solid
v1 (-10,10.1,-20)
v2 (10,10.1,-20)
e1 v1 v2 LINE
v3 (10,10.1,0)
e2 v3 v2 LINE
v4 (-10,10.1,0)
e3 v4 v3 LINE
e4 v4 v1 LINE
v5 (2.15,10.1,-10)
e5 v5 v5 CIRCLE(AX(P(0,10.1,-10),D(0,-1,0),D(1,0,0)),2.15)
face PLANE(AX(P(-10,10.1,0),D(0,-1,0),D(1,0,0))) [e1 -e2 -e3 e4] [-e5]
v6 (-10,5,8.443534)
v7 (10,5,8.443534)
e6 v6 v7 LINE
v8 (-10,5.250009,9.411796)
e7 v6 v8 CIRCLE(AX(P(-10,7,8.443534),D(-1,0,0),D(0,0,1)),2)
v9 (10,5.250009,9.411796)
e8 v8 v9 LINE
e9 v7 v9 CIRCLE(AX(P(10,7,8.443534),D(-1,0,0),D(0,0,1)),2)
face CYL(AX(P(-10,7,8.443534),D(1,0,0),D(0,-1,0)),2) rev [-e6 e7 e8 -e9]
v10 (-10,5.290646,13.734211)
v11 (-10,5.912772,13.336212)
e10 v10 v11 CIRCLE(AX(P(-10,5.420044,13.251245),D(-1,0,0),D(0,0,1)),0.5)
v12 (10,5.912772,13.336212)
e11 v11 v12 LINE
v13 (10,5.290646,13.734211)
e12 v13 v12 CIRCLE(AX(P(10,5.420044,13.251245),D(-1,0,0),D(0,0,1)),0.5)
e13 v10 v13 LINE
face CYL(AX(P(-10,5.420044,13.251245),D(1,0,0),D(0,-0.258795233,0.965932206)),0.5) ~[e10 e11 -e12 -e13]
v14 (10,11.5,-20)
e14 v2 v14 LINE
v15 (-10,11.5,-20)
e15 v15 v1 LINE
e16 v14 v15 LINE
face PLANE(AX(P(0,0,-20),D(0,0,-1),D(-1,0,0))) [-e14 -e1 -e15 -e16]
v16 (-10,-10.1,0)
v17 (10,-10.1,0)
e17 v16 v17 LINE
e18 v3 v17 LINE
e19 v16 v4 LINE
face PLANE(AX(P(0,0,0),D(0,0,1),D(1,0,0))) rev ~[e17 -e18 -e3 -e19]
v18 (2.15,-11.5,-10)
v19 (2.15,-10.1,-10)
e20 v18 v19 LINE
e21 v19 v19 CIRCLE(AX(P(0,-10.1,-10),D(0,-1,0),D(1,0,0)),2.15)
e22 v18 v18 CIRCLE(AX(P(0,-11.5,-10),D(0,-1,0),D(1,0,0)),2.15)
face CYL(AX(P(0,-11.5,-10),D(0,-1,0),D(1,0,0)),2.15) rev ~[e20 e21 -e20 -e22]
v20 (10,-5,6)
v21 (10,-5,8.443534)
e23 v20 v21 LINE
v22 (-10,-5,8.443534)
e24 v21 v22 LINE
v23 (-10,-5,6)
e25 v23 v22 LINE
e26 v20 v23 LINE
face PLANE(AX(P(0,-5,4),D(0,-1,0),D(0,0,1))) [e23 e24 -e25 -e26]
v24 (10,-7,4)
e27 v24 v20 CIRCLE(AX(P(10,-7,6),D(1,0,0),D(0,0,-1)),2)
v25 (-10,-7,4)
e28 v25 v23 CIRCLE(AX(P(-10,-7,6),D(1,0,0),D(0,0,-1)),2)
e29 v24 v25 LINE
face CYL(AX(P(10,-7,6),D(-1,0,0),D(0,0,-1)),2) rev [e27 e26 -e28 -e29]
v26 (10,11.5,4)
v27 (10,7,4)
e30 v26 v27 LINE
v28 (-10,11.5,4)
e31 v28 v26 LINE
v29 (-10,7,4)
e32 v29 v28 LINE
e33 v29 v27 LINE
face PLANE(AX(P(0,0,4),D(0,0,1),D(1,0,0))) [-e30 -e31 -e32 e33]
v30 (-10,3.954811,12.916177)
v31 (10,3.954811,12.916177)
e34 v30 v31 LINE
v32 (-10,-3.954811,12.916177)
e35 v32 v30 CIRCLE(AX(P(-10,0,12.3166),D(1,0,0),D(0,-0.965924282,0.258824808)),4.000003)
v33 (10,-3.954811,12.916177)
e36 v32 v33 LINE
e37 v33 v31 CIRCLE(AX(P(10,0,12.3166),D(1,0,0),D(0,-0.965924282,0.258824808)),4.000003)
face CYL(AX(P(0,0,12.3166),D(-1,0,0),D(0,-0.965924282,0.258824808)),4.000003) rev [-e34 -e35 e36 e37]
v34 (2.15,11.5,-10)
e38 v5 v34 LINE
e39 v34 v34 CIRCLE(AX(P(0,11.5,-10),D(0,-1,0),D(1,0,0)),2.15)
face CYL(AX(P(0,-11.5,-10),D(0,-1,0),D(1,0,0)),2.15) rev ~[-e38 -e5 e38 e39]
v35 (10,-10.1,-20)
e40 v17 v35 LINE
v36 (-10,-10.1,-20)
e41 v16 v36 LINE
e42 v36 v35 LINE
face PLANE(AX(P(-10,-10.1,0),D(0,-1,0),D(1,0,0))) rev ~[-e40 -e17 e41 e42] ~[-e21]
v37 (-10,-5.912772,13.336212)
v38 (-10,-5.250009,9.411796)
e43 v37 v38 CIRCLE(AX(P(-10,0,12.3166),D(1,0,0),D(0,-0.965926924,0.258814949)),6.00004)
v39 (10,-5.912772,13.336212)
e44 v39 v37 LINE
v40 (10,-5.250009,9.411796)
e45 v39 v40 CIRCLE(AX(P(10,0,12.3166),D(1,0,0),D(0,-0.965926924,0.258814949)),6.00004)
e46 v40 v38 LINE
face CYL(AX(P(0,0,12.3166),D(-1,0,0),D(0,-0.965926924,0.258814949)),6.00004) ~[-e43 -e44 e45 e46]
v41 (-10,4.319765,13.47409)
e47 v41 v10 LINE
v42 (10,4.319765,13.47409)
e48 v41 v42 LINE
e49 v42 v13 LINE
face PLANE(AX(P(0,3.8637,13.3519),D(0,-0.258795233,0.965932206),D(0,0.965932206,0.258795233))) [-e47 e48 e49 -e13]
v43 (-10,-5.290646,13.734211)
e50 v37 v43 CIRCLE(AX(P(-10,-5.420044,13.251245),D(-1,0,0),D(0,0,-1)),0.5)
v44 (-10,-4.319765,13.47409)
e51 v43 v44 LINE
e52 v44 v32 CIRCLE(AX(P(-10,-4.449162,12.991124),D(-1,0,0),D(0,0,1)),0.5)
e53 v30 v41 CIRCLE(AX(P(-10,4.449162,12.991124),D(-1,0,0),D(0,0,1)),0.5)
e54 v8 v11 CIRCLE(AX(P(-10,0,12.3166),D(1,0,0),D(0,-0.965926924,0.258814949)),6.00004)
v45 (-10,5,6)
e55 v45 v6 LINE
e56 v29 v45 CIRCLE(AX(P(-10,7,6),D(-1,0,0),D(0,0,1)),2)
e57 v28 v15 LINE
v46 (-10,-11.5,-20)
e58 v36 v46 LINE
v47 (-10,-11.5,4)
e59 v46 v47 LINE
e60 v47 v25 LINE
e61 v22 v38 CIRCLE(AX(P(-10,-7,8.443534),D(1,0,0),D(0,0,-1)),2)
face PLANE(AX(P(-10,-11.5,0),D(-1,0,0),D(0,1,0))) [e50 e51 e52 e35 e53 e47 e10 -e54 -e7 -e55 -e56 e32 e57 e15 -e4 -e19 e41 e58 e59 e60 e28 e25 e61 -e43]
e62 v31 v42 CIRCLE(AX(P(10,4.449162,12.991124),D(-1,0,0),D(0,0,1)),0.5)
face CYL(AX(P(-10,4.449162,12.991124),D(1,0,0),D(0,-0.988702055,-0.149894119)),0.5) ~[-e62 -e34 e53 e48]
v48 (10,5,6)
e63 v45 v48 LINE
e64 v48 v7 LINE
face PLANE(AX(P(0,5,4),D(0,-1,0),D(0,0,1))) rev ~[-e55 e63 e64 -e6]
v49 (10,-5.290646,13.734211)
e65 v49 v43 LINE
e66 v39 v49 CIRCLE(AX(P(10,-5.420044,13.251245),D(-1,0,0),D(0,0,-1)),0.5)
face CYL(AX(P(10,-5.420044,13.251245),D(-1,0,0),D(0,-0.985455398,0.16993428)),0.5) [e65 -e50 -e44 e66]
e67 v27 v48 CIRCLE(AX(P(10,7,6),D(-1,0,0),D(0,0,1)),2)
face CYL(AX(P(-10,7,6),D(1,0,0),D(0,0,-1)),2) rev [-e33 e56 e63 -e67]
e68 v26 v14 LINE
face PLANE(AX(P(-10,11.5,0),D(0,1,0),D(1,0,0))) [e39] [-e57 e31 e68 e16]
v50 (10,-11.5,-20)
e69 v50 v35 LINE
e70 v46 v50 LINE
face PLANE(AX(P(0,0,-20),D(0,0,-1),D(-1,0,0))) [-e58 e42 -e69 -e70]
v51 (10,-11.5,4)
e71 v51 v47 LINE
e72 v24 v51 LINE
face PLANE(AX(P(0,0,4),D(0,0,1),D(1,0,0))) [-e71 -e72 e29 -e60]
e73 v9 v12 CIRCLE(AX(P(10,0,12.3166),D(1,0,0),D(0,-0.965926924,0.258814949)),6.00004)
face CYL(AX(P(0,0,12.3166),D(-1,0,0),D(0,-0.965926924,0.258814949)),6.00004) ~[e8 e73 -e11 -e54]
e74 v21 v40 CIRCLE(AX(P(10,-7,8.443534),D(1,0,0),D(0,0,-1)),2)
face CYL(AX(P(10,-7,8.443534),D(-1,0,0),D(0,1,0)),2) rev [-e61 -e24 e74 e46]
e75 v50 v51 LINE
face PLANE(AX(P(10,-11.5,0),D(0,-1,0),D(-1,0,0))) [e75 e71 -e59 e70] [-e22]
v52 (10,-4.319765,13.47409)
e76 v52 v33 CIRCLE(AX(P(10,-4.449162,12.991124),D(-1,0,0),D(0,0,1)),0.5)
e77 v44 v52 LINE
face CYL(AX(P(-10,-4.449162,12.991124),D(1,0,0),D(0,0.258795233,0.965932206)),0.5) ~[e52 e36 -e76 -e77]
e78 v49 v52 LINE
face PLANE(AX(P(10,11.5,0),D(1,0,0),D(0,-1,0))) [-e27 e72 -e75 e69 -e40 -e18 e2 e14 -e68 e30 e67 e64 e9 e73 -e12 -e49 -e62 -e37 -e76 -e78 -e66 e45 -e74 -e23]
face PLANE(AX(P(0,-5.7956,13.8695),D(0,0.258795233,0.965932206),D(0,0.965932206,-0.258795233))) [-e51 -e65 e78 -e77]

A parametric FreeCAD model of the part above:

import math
import FreeCAD as App
import Part
import Sketcher

V = App.Vector
Q = App.Units.Quantity


def edges_at(feature, points):
    """Names of the edges that pass closest to the given points."""
    edges = feature.Shape.Edges
    near = lambda p: min(range(len(edges)), key=lambda i: edges[i].distToShape(Part.Vertex(*p))[0])
    return sorted({f"Edge{near(p) + 1}" for p in points})

doc = App.newDocument("Part")
body = doc.addObject("PartDesign::Body", "Body")

sketch1 = doc.addObject("Sketcher::SketchObject", "Sketch")
body.addObject(sketch1)
sketch1.AttachmentSupport = (doc.XY_Plane, [""])
sketch1.MapMode = "FlatFace"
sketch1.addGeometry(Part.LineSegment(V(10, 12, 0), V(-10, 12, 0)), False)
sketch1.addGeometry(Part.LineSegment(V(-10, 12, 0), V(-10, -12, 0)), False)
sketch1.addGeometry(Part.LineSegment(V(-10, -12, 0), V(10, -12, 0)), False)
sketch1.addGeometry(Part.LineSegment(V(10, -12, 0), V(10, 12, 0)), False)
sketch1.addConstraint(Sketcher.Constraint("Coincident", 0, 2, 1, 1))
sketch1.addConstraint(Sketcher.Constraint("Coincident", 1, 2, 2, 1))
sketch1.addConstraint(Sketcher.Constraint("Coincident", 2, 2, 3, 1))
sketch1.addConstraint(Sketcher.Constraint("Coincident", 3, 2, 0, 1))
sketch1.addConstraint(Sketcher.Constraint("Horizontal", 0))
sketch1.addConstraint(Sketcher.Constraint("Vertical", 1))
sketch1.addConstraint(Sketcher.Constraint("Horizontal", 2))
sketch1.addConstraint(Sketcher.Constraint("Vertical", 3))
sketch1.addConstraint(Sketcher.Constraint("Symmetric", 0, 2, 2, 2, -1, 1))
sketch1.addConstraint(Sketcher.Constraint("DistanceX", 0, 2, 0, 1, Q("20 mm")))
sketch1.addConstraint(Sketcher.Constraint("DistanceY", 1, 2, 1, 1, Q("23 mm")))
pad1 = doc.addObject("PartDesign::Pad", "Pad")
body.addObject(pad1)
pad1.Profile = sketch1
pad1.Length = 4

sketch2 = doc.addObject("Sketcher::SketchObject", "Sketch001")
body.addObject(sketch2)
sketch2.AttachmentSupport = (doc.YZ_Plane, [""])
sketch2.MapMode = "FlatFace"
sketch2.addGeometry(Part.LineSegment(V(-5, 4, 0), V(5, 4, 0)), False)
sketch2.addGeometry(Part.LineSegment(V(5, 4, 0), V(5, 9, 0)), False)
sketch2.addGeometry(Part.ArcOfCircle(Part.Circle(V(0, 12.3, 0), V(0, 0, 1), 6), math.radians(-34), math.radians(15)), False)
sketch2.addGeometry(Part.LineSegment(V(5.8, 13.9, 0), V(3.9, 13.4, 0)), False)
sketch2.addGeometry(Part.ArcOfCircle(Part.Circle(V(0, 12.3, 0), V(0, 0, 1), 4), math.radians(165), math.radians(375)), False)
sketch2.addGeometry(Part.LineSegment(V(-3.9, 13.4, 0), V(-5.8, 13.9, 0)), False)
sketch2.addGeometry(Part.ArcOfCircle(Part.Circle(V(0, 12.3, 0), V(0, 0, 1), 6), math.radians(165), math.radians(214)), False)
sketch2.addGeometry(Part.LineSegment(V(-5, 9, 0), V(-5, 4, 0)), False)
sketch2.addConstraint(Sketcher.Constraint("Coincident", 0, 2, 1, 1))
sketch2.addConstraint(Sketcher.Constraint("Coincident", 1, 2, 2, 1))
sketch2.addConstraint(Sketcher.Constraint("Coincident", 2, 2, 3, 1))
sketch2.addConstraint(Sketcher.Constraint("Coincident", 3, 2, 4, 2))
sketch2.addConstraint(Sketcher.Constraint("Coincident", 4, 1, 5, 1))
sketch2.addConstraint(Sketcher.Constraint("Coincident", 5, 2, 6, 1))
sketch2.addConstraint(Sketcher.Constraint("Coincident", 6, 2, 7, 1))
sketch2.addConstraint(Sketcher.Constraint("Coincident", 7, 2, 0, 1))
sketch2.addConstraint(Sketcher.Constraint("Horizontal", 0))
sketch2.addConstraint(Sketcher.Constraint("Vertical", 1))
sketch2.addConstraint(Sketcher.Constraint("Vertical", 7))
sketch2.addConstraint(Sketcher.Constraint("Coincident", 4, 3, 2, 3))
sketch2.addConstraint(Sketcher.Constraint("Coincident", 6, 3, 2, 3))
sketch2.addConstraint(Sketcher.Constraint("Equal", 2, 6))
sketch2.addConstraint(Sketcher.Constraint("Symmetric", 3, 2, 4, 1, -2))
sketch2.addConstraint(Sketcher.Constraint("Horizontal", 2, 2, 5, 2))
sketch2.addConstraint(Sketcher.Constraint("Horizontal", 1, 2, 6, 2))
sketch2.addConstraint(Sketcher.Constraint("Radius", 2, Q("6 mm")))
sketch2.addConstraint(Sketcher.Constraint("Radius", 4, Q("4 mm")))
sketch2.addConstraint(Sketcher.Constraint("DistanceX", 0, 1, 0, 2, Q("10 mm")))
sketch2.addConstraint(Sketcher.Constraint("DistanceY", 1, 1, 1, 2, Q("5 mm")))
sketch2.addConstraint(Sketcher.Constraint("DistanceY", -1, 1, 0, 2, Q("4 mm")))
sketch2.addConstraint(Sketcher.Constraint("DistanceY", -1, 1, 3, 2, Q("13.352 mm")))
sketch2.addConstraint(Sketcher.Constraint("DistanceY", 2, 3, 2, 2, Q("1.553 mm")))
pad2 = doc.addObject("PartDesign::Pad", "Pad001")
body.addObject(pad2)
pad2.Profile = sketch2
pad2.Length = 20
pad2.Midplane = True
doc.recompute()

fillet = doc.addObject("PartDesign::Fillet", "Fillet")
body.addObject(fillet)
fillet.Base = (pad2, edges_at(pad2, [
    (0, -5, 4),
    (0, -5, 9),
    (0, 5, 9),
    (0, 5, 4),
]))
fillet.Radius = 2
doc.recompute()

fillet2 = doc.addObject("PartDesign::Fillet", "Fillet001")
body.addObject(fillet2)
fillet2.Base = (fillet, edges_at(fillet, [
    (0, 3.864, 13.352),
    (0, 5.796, 13.87),
    (0, -3.864, 13.352),
    (0, -5.796, 13.87),
]))
fillet2.Radius = 0.5

sketch3 = doc.addObject("Sketcher::SketchObject", "Sketch002")
body.addObject(sketch3)
sketch3.AttachmentSupport = (doc.XY_Plane, [""])
sketch3.MapMode = "FlatFace"
sketch3.addGeometry(Part.LineSegment(V(10, -10.1, 0), V(10, -11.5, 0)), False)
sketch3.addGeometry(Part.LineSegment(V(10, -11.5, 0), V(-10, -11.5, 0)), False)
sketch3.addGeometry(Part.LineSegment(V(-10, -11.5, 0), V(-10, -10.1, 0)), False)
sketch3.addGeometry(Part.LineSegment(V(-10, -10.1, 0), V(10, -10.1, 0)), False)
sketch3.addGeometry(Part.LineSegment(V(10, 11.5, 0), V(10, 10.1, 0)), False)
sketch3.addGeometry(Part.LineSegment(V(10, 10.1, 0), V(-10, 10.1, 0)), False)
sketch3.addGeometry(Part.LineSegment(V(-10, 10.1, 0), V(-10, 11.5, 0)), False)
sketch3.addGeometry(Part.LineSegment(V(-10, 11.5, 0), V(10, 11.5, 0)), False)
sketch3.addConstraint(Sketcher.Constraint("Coincident", 0, 2, 1, 1))
sketch3.addConstraint(Sketcher.Constraint("Coincident", 1, 2, 2, 1))
sketch3.addConstraint(Sketcher.Constraint("Coincident", 2, 2, 3, 1))
sketch3.addConstraint(Sketcher.Constraint("Coincident", 3, 2, 0, 1))
sketch3.addConstraint(Sketcher.Constraint("Coincident", 4, 2, 5, 1))
sketch3.addConstraint(Sketcher.Constraint("Coincident", 5, 2, 6, 1))
sketch3.addConstraint(Sketcher.Constraint("Coincident", 6, 2, 7, 1))
sketch3.addConstraint(Sketcher.Constraint("Coincident", 7, 2, 4, 1))
sketch3.addConstraint(Sketcher.Constraint("Vertical", 0))
sketch3.addConstraint(Sketcher.Constraint("Horizontal", 1))
sketch3.addConstraint(Sketcher.Constraint("Vertical", 2))
sketch3.addConstraint(Sketcher.Constraint("Horizontal", 3))
sketch3.addConstraint(Sketcher.Constraint("Vertical", 4))
sketch3.addConstraint(Sketcher.Constraint("Horizontal", 5))
sketch3.addConstraint(Sketcher.Constraint("Vertical", 6))
sketch3.addConstraint(Sketcher.Constraint("Horizontal", 7))
sketch3.addConstraint(Sketcher.Constraint("Symmetric", 2, 2, 4, 2, -1, 1))
sketch3.addConstraint(Sketcher.Constraint("Symmetric", 0, 2, 6, 2, -1, 1))
sketch3.addConstraint(Sketcher.Constraint("Vertical", 3, 2, 4, 2))
sketch3.addConstraint(Sketcher.Constraint("DistanceY", 0, 2, 0, 1, Q("1.4 mm")))
sketch3.addConstraint(Sketcher.Constraint("DistanceX", 1, 2, 1, 1, Q("20 mm")))
sketch3.addConstraint(Sketcher.Constraint("DistanceY", 1, 2, 6, 2, Q("23 mm")))
pad3 = doc.addObject("PartDesign::Pad", "Pad002")
body.addObject(pad3)
pad3.Profile = sketch3
pad3.Length = 20
pad3.Reversed = True

sketch4 = doc.addObject("Sketcher::SketchObject", "Sketch003")
body.addObject(sketch4)
sketch4.AttachmentSupport = (doc.XZ_Plane, [""])
sketch4.MapMode = "FlatFace"
sketch4.AttachmentOffset = App.Placement(V(0, 0, 11.5), App.Rotation())
sketch4.addGeometry(Part.Circle(V(0, -10, 0), V(0, 0, 1), 2.1), False)
sketch4.addConstraint(Sketcher.Constraint("PointOnObject", 0, 3, -2))
sketch4.addConstraint(Sketcher.Constraint("Diameter", 0, Q("4.3 mm")))
sketch4.addConstraint(Sketcher.Constraint("DistanceY", 0, 3, -1, 1, Q("10 mm")))
pocket1 = doc.addObject("PartDesign::Pocket", "Pocket")
body.addObject(pocket1)
pocket1.Profile = sketch4
pocket1.Type = "ThroughAll"

doc.recompute()
